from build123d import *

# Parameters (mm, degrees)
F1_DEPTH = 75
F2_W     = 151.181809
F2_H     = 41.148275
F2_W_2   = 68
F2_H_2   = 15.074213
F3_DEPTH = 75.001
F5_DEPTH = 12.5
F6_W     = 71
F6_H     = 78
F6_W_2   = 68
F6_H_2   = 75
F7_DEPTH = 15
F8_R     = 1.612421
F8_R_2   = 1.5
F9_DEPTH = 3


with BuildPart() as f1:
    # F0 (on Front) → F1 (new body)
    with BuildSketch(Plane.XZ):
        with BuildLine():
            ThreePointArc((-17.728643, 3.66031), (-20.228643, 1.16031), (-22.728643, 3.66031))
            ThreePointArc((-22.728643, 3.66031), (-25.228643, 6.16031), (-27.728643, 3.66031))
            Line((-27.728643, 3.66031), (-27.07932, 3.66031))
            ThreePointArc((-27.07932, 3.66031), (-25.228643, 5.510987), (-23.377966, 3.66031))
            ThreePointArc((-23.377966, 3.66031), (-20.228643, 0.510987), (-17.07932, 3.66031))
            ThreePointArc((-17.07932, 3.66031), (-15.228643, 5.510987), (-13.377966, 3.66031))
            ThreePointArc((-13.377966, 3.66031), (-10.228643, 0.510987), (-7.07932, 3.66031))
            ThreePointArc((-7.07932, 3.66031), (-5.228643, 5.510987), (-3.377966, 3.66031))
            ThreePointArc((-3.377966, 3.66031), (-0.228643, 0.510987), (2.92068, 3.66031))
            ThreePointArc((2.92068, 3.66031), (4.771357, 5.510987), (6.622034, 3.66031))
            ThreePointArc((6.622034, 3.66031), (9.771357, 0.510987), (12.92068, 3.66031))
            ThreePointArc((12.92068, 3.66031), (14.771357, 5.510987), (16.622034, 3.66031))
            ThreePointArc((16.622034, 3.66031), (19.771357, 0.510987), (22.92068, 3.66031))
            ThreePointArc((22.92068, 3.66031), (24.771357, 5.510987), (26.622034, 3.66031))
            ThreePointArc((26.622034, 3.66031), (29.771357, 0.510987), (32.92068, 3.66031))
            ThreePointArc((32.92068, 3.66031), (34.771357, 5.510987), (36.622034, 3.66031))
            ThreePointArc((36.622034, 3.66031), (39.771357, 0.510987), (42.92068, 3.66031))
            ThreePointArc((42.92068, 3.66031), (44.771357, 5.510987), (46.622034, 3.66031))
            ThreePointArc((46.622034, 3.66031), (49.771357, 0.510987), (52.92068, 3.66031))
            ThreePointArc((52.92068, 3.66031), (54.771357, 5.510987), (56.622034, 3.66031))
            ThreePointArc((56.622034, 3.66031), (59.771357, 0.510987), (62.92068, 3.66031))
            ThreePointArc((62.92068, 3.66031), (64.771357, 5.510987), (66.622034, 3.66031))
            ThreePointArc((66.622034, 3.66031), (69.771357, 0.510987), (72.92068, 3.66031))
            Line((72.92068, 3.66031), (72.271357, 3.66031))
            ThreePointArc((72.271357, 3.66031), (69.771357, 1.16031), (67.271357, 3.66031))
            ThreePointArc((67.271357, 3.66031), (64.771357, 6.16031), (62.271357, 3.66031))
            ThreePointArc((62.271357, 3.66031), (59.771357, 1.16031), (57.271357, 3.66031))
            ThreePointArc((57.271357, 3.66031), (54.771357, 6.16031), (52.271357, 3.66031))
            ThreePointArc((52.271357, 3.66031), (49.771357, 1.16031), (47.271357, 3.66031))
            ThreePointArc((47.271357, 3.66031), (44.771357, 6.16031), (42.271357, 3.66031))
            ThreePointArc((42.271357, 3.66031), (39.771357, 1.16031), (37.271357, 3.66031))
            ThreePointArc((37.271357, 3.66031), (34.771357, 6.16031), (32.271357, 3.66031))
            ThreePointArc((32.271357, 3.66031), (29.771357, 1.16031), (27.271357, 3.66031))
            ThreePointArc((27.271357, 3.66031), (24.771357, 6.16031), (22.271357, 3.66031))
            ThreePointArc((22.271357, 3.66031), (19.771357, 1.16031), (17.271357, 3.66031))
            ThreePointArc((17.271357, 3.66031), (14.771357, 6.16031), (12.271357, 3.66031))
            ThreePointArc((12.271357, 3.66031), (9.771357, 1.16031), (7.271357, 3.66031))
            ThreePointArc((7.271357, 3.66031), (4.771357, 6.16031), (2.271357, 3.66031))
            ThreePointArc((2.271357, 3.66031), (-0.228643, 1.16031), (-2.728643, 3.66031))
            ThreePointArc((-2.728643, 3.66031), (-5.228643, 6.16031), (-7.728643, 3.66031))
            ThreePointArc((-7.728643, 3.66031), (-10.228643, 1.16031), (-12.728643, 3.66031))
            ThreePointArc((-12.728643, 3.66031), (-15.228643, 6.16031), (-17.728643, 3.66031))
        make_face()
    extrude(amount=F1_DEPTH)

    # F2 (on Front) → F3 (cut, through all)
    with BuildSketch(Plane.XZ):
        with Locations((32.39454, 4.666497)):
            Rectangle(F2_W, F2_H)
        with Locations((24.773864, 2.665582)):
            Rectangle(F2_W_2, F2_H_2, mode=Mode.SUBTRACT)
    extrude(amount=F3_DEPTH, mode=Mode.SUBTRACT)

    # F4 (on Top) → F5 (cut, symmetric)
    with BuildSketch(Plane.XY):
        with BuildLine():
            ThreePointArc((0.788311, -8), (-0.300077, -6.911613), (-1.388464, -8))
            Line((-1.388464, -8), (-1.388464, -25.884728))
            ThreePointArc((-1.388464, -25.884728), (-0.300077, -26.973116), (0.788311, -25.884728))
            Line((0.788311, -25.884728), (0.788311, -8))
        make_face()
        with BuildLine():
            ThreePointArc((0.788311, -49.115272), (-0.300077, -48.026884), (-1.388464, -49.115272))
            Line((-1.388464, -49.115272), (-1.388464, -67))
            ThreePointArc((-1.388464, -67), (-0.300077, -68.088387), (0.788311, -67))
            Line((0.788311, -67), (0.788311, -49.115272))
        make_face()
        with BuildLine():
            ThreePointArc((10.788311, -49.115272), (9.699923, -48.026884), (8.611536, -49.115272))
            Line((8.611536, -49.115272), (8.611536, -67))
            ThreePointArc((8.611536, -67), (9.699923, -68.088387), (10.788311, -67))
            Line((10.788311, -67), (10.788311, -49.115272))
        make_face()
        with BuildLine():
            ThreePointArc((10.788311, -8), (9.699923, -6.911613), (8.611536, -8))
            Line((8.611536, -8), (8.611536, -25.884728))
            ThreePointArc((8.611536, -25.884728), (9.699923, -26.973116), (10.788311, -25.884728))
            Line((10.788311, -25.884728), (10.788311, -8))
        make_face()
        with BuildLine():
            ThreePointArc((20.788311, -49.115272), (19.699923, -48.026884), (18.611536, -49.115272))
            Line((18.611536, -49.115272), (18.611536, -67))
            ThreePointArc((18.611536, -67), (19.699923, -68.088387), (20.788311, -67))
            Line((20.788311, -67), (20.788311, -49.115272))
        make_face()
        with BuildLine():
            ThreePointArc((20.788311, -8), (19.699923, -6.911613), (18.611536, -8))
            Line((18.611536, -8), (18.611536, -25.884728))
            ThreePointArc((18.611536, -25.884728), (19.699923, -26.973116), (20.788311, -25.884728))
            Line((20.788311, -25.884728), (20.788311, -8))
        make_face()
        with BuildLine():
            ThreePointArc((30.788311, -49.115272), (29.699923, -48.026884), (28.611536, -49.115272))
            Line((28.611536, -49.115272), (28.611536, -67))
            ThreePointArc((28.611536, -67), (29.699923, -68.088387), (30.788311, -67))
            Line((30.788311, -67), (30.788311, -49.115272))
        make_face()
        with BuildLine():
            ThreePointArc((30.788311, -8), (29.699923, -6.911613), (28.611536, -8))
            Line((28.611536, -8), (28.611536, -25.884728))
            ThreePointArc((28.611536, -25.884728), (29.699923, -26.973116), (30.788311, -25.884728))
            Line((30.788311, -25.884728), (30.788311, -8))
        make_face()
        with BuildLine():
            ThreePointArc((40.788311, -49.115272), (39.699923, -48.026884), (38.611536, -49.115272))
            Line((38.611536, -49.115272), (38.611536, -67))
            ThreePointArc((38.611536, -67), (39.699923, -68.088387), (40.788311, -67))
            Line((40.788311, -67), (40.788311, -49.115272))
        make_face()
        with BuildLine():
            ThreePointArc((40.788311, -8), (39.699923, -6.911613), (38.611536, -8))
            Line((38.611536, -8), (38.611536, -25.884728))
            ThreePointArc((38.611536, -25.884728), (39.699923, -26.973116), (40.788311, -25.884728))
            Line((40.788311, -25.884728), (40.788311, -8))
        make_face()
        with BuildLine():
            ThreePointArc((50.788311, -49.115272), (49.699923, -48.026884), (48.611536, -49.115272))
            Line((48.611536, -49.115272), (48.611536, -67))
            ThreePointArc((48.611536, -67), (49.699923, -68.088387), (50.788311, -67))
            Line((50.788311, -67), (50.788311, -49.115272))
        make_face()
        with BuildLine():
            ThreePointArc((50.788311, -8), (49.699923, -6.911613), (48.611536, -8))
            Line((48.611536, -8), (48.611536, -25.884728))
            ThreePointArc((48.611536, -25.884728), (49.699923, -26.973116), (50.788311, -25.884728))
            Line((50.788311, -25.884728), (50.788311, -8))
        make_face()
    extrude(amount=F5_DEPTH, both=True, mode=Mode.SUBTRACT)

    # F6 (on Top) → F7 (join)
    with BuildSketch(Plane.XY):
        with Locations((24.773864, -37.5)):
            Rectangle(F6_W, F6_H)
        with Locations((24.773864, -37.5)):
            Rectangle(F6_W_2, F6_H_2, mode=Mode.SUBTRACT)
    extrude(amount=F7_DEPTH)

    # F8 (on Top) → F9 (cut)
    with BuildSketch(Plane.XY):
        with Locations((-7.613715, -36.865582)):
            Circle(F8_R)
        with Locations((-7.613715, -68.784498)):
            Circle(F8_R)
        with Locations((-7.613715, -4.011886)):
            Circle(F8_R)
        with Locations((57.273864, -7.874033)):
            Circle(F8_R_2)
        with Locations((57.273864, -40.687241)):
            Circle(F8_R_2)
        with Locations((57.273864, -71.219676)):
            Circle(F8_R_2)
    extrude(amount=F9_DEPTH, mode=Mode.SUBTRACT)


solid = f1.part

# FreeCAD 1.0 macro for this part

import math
import FreeCAD as App
import Part
import Sketcher


def add_polygon(sketch, points):
    """Adds a closed chain of lines whose ends are joined by coincident constraints."""
    first, n = sketch.GeometryCount, len(points)
    for a, b in zip(points, points[1:] + points[:1]):
        sketch.addGeometry(Part.LineSegment(App.Vector(*a, 0), App.Vector(*b, 0)), False)
    for i in range(n):
        sketch.addConstraint(Sketcher.Constraint("Coincident", first + i, 2, first + (i + 1) % n, 1))

doc = App.newDocument("Part")
body = doc.addObject("PartDesign::Body", "Body")

sketch1 = body.newObject("Sketcher::SketchObject", "Sketch")
sketch1.AttachmentSupport = (doc.getObject("XZ_Plane"), [""])
sketch1.MapMode = "FlatFace"
sketch1.addGeometry([
    Part.ArcOfCircle(Part.Circle(App.Vector(-20.2, 3.7, 0), App.Vector(0, 0, 1), 2.5), math.radians(180), math.radians(360)),
    Part.ArcOfCircle(Part.Circle(App.Vector(-25.2, 3.7, 0), App.Vector(0, 0, 1), 2.5), math.radians(0), math.radians(180)),
    Part.LineSegment(App.Vector(-27.7, 3.7, 0), App.Vector(-27.1, 3.7, 0)),
    Part.ArcOfCircle(Part.Circle(App.Vector(-25.2, 3.7, 0), App.Vector(0, 0, 1), 1.9), math.radians(0), math.radians(180)),
    Part.ArcOfCircle(Part.Circle(App.Vector(-20.2, 3.7, 0), App.Vector(0, 0, 1), 3.1), math.radians(180), math.radians(360)),
    Part.ArcOfCircle(Part.Circle(App.Vector(-15.2, 3.7, 0), App.Vector(0, 0, 1), 1.9), math.radians(0), math.radians(180)),
    Part.ArcOfCircle(Part.Circle(App.Vector(-10.2, 3.7, 0), App.Vector(0, 0, 1), 3.1), math.radians(180), math.radians(360)),
    Part.ArcOfCircle(Part.Circle(App.Vector(-5.2, 3.7, 0), App.Vector(0, 0, 1), 1.9), math.radians(0), math.radians(180)),
    Part.ArcOfCircle(Part.Circle(App.Vector(-0.2, 3.7, 0), App.Vector(0, 0, 1), 3.1), math.radians(180), math.radians(360)),
    Part.ArcOfCircle(Part.Circle(App.Vector(4.8, 3.7, 0), App.Vector(0, 0, 1), 1.9), math.radians(0), math.radians(180)),
    Part.ArcOfCircle(Part.Circle(App.Vector(9.8, 3.7, 0), App.Vector(0, 0, 1), 3.1), math.radians(180), math.radians(360)),
    Part.ArcOfCircle(Part.Circle(App.Vector(14.8, 3.7, 0), App.Vector(0, 0, 1), 1.9), math.radians(0), math.radians(180)),
    Part.ArcOfCircle(Part.Circle(App.Vector(19.8, 3.7, 0), App.Vector(0, 0, 1), 3.1), math.radians(180), math.radians(360)),
    Part.ArcOfCircle(Part.Circle(App.Vector(24.8, 3.7, 0), App.Vector(0, 0, 1), 1.9), math.radians(0), math.radians(180)),
    Part.ArcOfCircle(Part.Circle(App.Vector(29.8, 3.7, 0), App.Vector(0, 0, 1), 3.1), math.radians(180), math.radians(360)),
    Part.ArcOfCircle(Part.Circle(App.Vector(34.8, 3.7, 0), App.Vector(0, 0, 1), 1.9), math.radians(0), math.radians(180)),
    Part.ArcOfCircle(Part.Circle(App.Vector(39.8, 3.7, 0), App.Vector(0, 0, 1), 3.1), math.radians(180), math.radians(360)),
    Part.ArcOfCircle(Part.Circle(App.Vector(44.8, 3.7, 0), App.Vector(0, 0, 1), 1.9), math.radians(0), math.radians(180)),
    Part.ArcOfCircle(Part.Circle(App.Vector(49.8, 3.7, 0), App.Vector(0, 0, 1), 3.1), math.radians(180), math.radians(360)),
    Part.ArcOfCircle(Part.Circle(App.Vector(54.8, 3.7, 0), App.Vector(0, 0, 1), 1.9), math.radians(0), math.radians(180)),
    Part.ArcOfCircle(Part.Circle(App.Vector(59.8, 3.7, 0), App.Vector(0, 0, 1), 3.1), math.radians(180), math.radians(360)),
    Part.ArcOfCircle(Part.Circle(App.Vector(64.8, 3.7, 0), App.Vector(0, 0, 1), 1.9), math.radians(0), math.radians(180)),
    Part.ArcOfCircle(Part.Circle(App.Vector(69.8, 3.7, 0), App.Vector(0, 0, 1), 3.1), math.radians(180), math.radians(360)),
    Part.LineSegment(App.Vector(72.9, 3.7, 0), App.Vector(72.3, 3.7, 0)),
    Part.ArcOfCircle(Part.Circle(App.Vector(69.8, 3.7, 0), App.Vector(0, 0, 1), 2.5), math.radians(180), math.radians(360)),
    Part.ArcOfCircle(Part.Circle(App.Vector(64.8, 3.7, 0), App.Vector(0, 0, 1), 2.5), math.radians(0), math.radians(180)),
    Part.ArcOfCircle(Part.Circle(App.Vector(59.8, 3.7, 0), App.Vector(0, 0, 1), 2.5), math.radians(180), math.radians(360)),
    Part.ArcOfCircle(Part.Circle(App.Vector(54.8, 3.7, 0), App.Vector(0, 0, 1), 2.5), math.radians(0), math.radians(180)),
    Part.ArcOfCircle(Part.Circle(App.Vector(49.8, 3.7, 0), App.Vector(0, 0, 1), 2.5), math.radians(180), math.radians(360)),
    Part.ArcOfCircle(Part.Circle(App.Vector(44.8, 3.7, 0), App.Vector(0, 0, 1), 2.5), math.radians(0), math.radians(180)),
    Part.ArcOfCircle(Part.Circle(App.Vector(39.8, 3.7, 0), App.Vector(0, 0, 1), 2.5), math.radians(180), math.radians(360)),
    Part.ArcOfCircle(Part.Circle(App.Vector(34.8, 3.7, 0), App.Vector(0, 0, 1), 2.5), math.radians(0), math.radians(180)),
    Part.ArcOfCircle(Part.Circle(App.Vector(29.8, 3.7, 0), App.Vector(0, 0, 1), 2.5), math.radians(180), math.radians(360)),
    Part.ArcOfCircle(Part.Circle(App.Vector(24.8, 3.7, 0), App.Vector(0, 0, 1), 2.5), math.radians(0), math.radians(180)),
    Part.ArcOfCircle(Part.Circle(App.Vector(19.8, 3.7, 0), App.Vector(0, 0, 1), 2.5), math.radians(180), math.radians(360)),
    Part.ArcOfCircle(Part.Circle(App.Vector(14.8, 3.7, 0), App.Vector(0, 0, 1), 2.5), math.radians(0), math.radians(180)),
    Part.ArcOfCircle(Part.Circle(App.Vector(9.8, 3.7, 0), App.Vector(0, 0, 1), 2.5), math.radians(180), math.radians(360)),
    Part.ArcOfCircle(Part.Circle(App.Vector(4.8, 3.7, 0), App.Vector(0, 0, 1), 2.5), math.radians(0), math.radians(180)),
    Part.ArcOfCircle(Part.Circle(App.Vector(-0.2, 3.7, 0), App.Vector(0, 0, 1), 2.5), math.radians(180), math.radians(360)),
    Part.ArcOfCircle(Part.Circle(App.Vector(-5.2, 3.7, 0), App.Vector(0, 0, 1), 2.5), math.radians(0), math.radians(180)),
    Part.ArcOfCircle(Part.Circle(App.Vector(-10.2, 3.7, 0), App.Vector(0, 0, 1), 2.5), math.radians(180), math.radians(360)),
    Part.ArcOfCircle(Part.Circle(App.Vector(-15.2, 3.7, 0), App.Vector(0, 0, 1), 2.5), math.radians(0), math.radians(180)),
], False)
sketch1.addConstraint([
    Sketcher.Constraint("Tangent", 0, 1, 1, 1),
    Sketcher.Constraint("Coincident", 1, 2, 2, 1),
    Sketcher.Constraint("Coincident", 2, 2, 3, 2),
    Sketcher.Constraint("Tangent", 3, 1, 4, 1),
    Sketcher.Constraint("Tangent", 4, 2, 5, 2),
    Sketcher.Constraint("Tangent", 5, 1, 6, 1),
    Sketcher.Constraint("Tangent", 6, 2, 7, 2),
    Sketcher.Constraint("Tangent", 7, 1, 8, 1),
    Sketcher.Constraint("Tangent", 8, 2, 9, 2),
    Sketcher.Constraint("Tangent", 9, 1, 10, 1),
    Sketcher.Constraint("Tangent", 10, 2, 11, 2),
    Sketcher.Constraint("Tangent", 11, 1, 12, 1),
    Sketcher.Constraint("Tangent", 12, 2, 13, 2),
    Sketcher.Constraint("Tangent", 13, 1, 14, 1),
    Sketcher.Constraint("Tangent", 14, 2, 15, 2),
    Sketcher.Constraint("Tangent", 15, 1, 16, 1),
    Sketcher.Constraint("Tangent", 16, 2, 17, 2),
    Sketcher.Constraint("Tangent", 17, 1, 18, 1),
    Sketcher.Constraint("Tangent", 18, 2, 19, 2),
    Sketcher.Constraint("Tangent", 19, 1, 20, 1),
    Sketcher.Constraint("Tangent", 20, 2, 21, 2),
    Sketcher.Constraint("Tangent", 21, 1, 22, 1),
    Sketcher.Constraint("Coincident", 22, 2, 23, 1),
    Sketcher.Constraint("Coincident", 23, 2, 24, 2),
    Sketcher.Constraint("Tangent", 24, 1, 25, 1),
    Sketcher.Constraint("Tangent", 25, 2, 26, 2),
    Sketcher.Constraint("Tangent", 26, 1, 27, 1),
    Sketcher.Constraint("Tangent", 27, 2, 28, 2),
    Sketcher.Constraint("Tangent", 28, 1, 29, 1),
    Sketcher.Constraint("Tangent", 29, 2, 30, 2),
    Sketcher.Constraint("Tangent", 30, 1, 31, 1),
    Sketcher.Constraint("Tangent", 31, 2, 32, 2),
    Sketcher.Constraint("Tangent", 32, 1, 33, 1),
    Sketcher.Constraint("Tangent", 33, 2, 34, 2),
    Sketcher.Constraint("Tangent", 34, 1, 35, 1),
    Sketcher.Constraint("Tangent", 35, 2, 36, 2),
    Sketcher.Constraint("Tangent", 36, 1, 37, 1),
    Sketcher.Constraint("Tangent", 37, 2, 38, 2),
    Sketcher.Constraint("Tangent", 38, 1, 39, 1),
    Sketcher.Constraint("Tangent", 39, 2, 40, 2),
    Sketcher.Constraint("Tangent", 40, 1, 41, 1),
    Sketcher.Constraint("Tangent", 41, 2, 0, 2),
    Sketcher.Constraint("Horizontal", 2),
    Sketcher.Constraint("Horizontal", 23),
    Sketcher.Constraint("Coincident", 3, 3, 1, 3),
    Sketcher.Constraint("Coincident", 4, 3, 0, 3),
    Sketcher.Constraint("Coincident", 24, 3, 22, 3),
    Sketcher.Constraint("Coincident", 25, 3, 21, 3),
    Sketcher.Constraint("Coincident", 26, 3, 20, 3),
    Sketcher.Constraint("Coincident", 27, 3, 19, 3),
    Sketcher.Constraint("Coincident", 28, 3, 18, 3),
    Sketcher.Constraint("Coincident", 29, 3, 17, 3),
    Sketcher.Constraint("Coincident", 30, 3, 16, 3),
    Sketcher.Constraint("Coincident", 31, 3, 15, 3),
    Sketcher.Constraint("Coincident", 32, 3, 14, 3),
    Sketcher.Constraint("Coincident", 33, 3, 13, 3),
    Sketcher.Constraint("Coincident", 34, 3, 12, 3),
    Sketcher.Constraint("Coincident", 35, 3, 11, 3),
    Sketcher.Constraint("Coincident", 36, 3, 10, 3),
    Sketcher.Constraint("Coincident", 37, 3, 9, 3),
    Sketcher.Constraint("Coincident", 38, 3, 8, 3),
    Sketcher.Constraint("Coincident", 39, 3, 7, 3),
    Sketcher.Constraint("Coincident", 40, 3, 6, 3),
    Sketcher.Constraint("Coincident", 41, 3, 5, 3),
    Sketcher.Constraint("Equal", 0, 1),
    Sketcher.Constraint("Equal", 3, 5),
    Sketcher.Constraint("Equal", 4, 6),
    Sketcher.Constraint("Equal", 5, 7),
    Sketcher.Constraint("Equal", 6, 8),
    Sketcher.Constraint("Equal", 7, 9),
    Sketcher.Constraint("Equal", 8, 10),
    Sketcher.Constraint("Equal", 9, 11),
    Sketcher.Constraint("Equal", 10, 12),
    Sketcher.Constraint("Equal", 11, 13),
    Sketcher.Constraint("Equal", 12, 14),
    Sketcher.Constraint("Equal", 13, 15),
    Sketcher.Constraint("Equal", 14, 16),
    Sketcher.Constraint("Equal", 15, 17),
    Sketcher.Constraint("Equal", 16, 18),
    Sketcher.Constraint("Equal", 17, 19),
    Sketcher.Constraint("Equal", 18, 20),
    Sketcher.Constraint("Equal", 19, 21),
    Sketcher.Constraint("Equal", 20, 22),
    Sketcher.Constraint("Horizontal", 0, 3, 1, 3),
    Sketcher.Constraint("Horizontal", 4, 3, 5, 3),
    Sketcher.Constraint("Horizontal", 5, 3, 6, 3),
    Sketcher.Constraint("Horizontal", 6, 3, 7, 3),
    Sketcher.Constraint("Horizontal", 7, 3, 8, 3),
    Sketcher.Constraint("Horizontal", 8, 3, 9, 3),
    Sketcher.Constraint("Horizontal", 9, 3, 10, 3),
    Sketcher.Constraint("Horizontal", 10, 3, 11, 3),
    Sketcher.Constraint("Horizontal", 11, 3, 12, 3),
    Sketcher.Constraint("Horizontal", 12, 3, 13, 3),
    Sketcher.Constraint("Horizontal", 13, 3, 14, 3),
    Sketcher.Constraint("Horizontal", 14, 3, 15, 3),
    Sketcher.Constraint("Horizontal", 15, 3, 16, 3),
    Sketcher.Constraint("Horizontal", 16, 3, 17, 3),
    Sketcher.Constraint("Horizontal", 17, 3, 18, 3),
    Sketcher.Constraint("Horizontal", 18, 3, 19, 3),
    Sketcher.Constraint("Horizontal", 19, 3, 20, 3),
    Sketcher.Constraint("Horizontal", 20, 3, 21, 3),
    Sketcher.Constraint("Horizontal", 21, 3, 22, 3),
    Sketcher.Constraint("Horizontal", 0, 1, 1, 2),
    Sketcher.Constraint("Horizontal", 21, 1, 22, 2),
    Sketcher.Constraint("Radius", 0, 2.5),
    Sketcher.Constraint("Radius", 3, 1.850677),
    Sketcher.Constraint("DistanceY", -1, 1, 0, 3, 3.66031),
    Sketcher.Constraint("DistanceX", 2, 2, -1, 1, 27.07932),
])
pad1 = body.newObject("PartDesign::Pad", "Pad")
pad1.Profile = sketch1
pad1.Length = 75

sketch2 = body.newObject("Sketcher::SketchObject", "Sketch001")
sketch2.AttachmentSupport = (doc.getObject("XZ_Plane"), [""])
sketch2.MapMode = "FlatFace"
add_polygon(sketch2, [(-43, 25), (-43, -16), (108, -16), (108, 25)])
add_polygon(sketch2, [(59, -5), (-9, -5), (-9, 10), (59, 10)])
sketch2.addConstraint([
    Sketcher.Constraint("Vertical", 0),
    Sketcher.Constraint("Horizontal", 1),
    Sketcher.Constraint("Vertical", 2),
    Sketcher.Constraint("Horizontal", 3),
    Sketcher.Constraint("Horizontal", 4),
    Sketcher.Constraint("Vertical", 5),
    Sketcher.Constraint("Horizontal", 6),
    Sketcher.Constraint("Vertical", 7),
    Sketcher.Constraint("DistanceX", 4, 2, 4, 1, 68.0),
    Sketcher.Constraint("DistanceX", 1, 1, 1, 2, 151.181809),
    Sketcher.Constraint("DistanceY", 0, 2, 0, 1, 41.148275),
    Sketcher.Constraint("DistanceY", 5, 1, 5, 2, 15.074213),
    Sketcher.Constraint("DistanceY", 0, 2, -1, 1, 15.90764),
    Sketcher.Constraint("DistanceY", -1, 1, 5, 2, 10.202689),
    Sketcher.Constraint("DistanceX", 0, 2, 4, 2, 33.970229),
    Sketcher.Constraint("DistanceX", 0, 2, -1, 1, 43.196365),
])
pocket1 = body.newObject("PartDesign::Pocket", "Pocket")
pocket1.Profile = sketch2
pocket1.Type = "ThroughAll"
pocket1.Reversed = True

sketch3 = body.newObject("Sketcher::SketchObject", "Sketch002")
sketch3.AttachmentSupport = (doc.getObject("XY_Plane"), [""])
sketch3.MapMode = "FlatFace"
sketch3.addGeometry([
    Part.ArcOfCircle(Part.Circle(App.Vector(-0.3, -8, 0), App.Vector(0, 0, 1), 1.1), math.radians(0), math.radians(180)),
    Part.LineSegment(App.Vector(-1.4, -8, 0), App.Vector(-1.4, -25.9, 0)),
    Part.ArcOfCircle(Part.Circle(App.Vector(-0.3, -25.9, 0), App.Vector(0, 0, 1), 1.1), math.radians(180), math.radians(360)),
    Part.LineSegment(App.Vector(0.8, -25.9, 0), App.Vector(0.8, -8, 0)),
    Part.ArcOfCircle(Part.Circle(App.Vector(-0.3, -49.1, 0), App.Vector(0, 0, 1), 1.1), math.radians(0), math.radians(180)),
    Part.LineSegment(App.Vector(-1.4, -49.1, 0), App.Vector(-1.4, -67, 0)),
    Part.ArcOfCircle(Part.Circle(App.Vector(-0.3, -67, 0), App.Vector(0, 0, 1), 1.1), math.radians(-180), math.radians(0)),
    Part.LineSegment(App.Vector(0.8, -67, 0), App.Vector(0.8, -49.1, 0)),
    Part.ArcOfCircle(Part.Circle(App.Vector(9.7, -49.1, 0), App.Vector(0, 0, 1), 1.1), math.radians(0), math.radians(180)),
    Part.LineSegment(App.Vector(8.6, -49.1, 0), App.Vector(8.6, -67, 0)),
    Part.ArcOfCircle(Part.Circle(App.Vector(9.7, -67, 0), App.Vector(0, 0, 1), 1.1), math.radians(-180), math.radians(0)),
    Part.LineSegment(App.Vector(10.8, -67, 0), App.Vector(10.8, -49.1, 0)),
    Part.ArcOfCircle(Part.Circle(App.Vector(9.7, -8, 0), App.Vector(0, 0, 1), 1.1), math.radians(0), math.radians(180)),
    Part.LineSegment(App.Vector(8.6, -8, 0), App.Vector(8.6, -25.9, 0)),
    Part.ArcOfCircle(Part.Circle(App.Vector(9.7, -25.9, 0), App.Vector(0, 0, 1), 1.1), math.radians(180), math.radians(360)),
    Part.LineSegment(App.Vector(10.8, -25.9, 0), App.Vector(10.8, -8, 0)),
    Part.ArcOfCircle(Part.Circle(App.Vector(19.7, -49.1, 0), App.Vector(0, 0, 1), 1.1), math.radians(0), math.radians(180)),
    Part.LineSegment(App.Vector(18.6, -49.1, 0), App.Vector(18.6, -67, 0)),
    Part.ArcOfCircle(Part.Circle(App.Vector(19.7, -67, 0), App.Vector(0, 0, 1), 1.1), math.radians(-180), math.radians(0)),
    Part.LineSegment(App.Vector(20.8, -67, 0), App.Vector(20.8, -49.1, 0)),
    Part.ArcOfCircle(Part.Circle(App.Vector(19.7, -8, 0), App.Vector(0, 0, 1), 1.1), math.radians(0), math.radians(180)),
    Part.LineSegment(App.Vector(18.6, -8, 0), App.Vector(18.6, -25.9, 0)),
    Part.ArcOfCircle(Part.Circle(App.Vector(19.7, -25.9, 0), App.Vector(0, 0, 1), 1.1), math.radians(180), math.radians(360)),
    Part.LineSegment(App.Vector(20.8, -25.9, 0), App.Vector(20.8, -8, 0)),
    Part.ArcOfCircle(Part.Circle(App.Vector(29.7, -49.1, 0), App.Vector(0, 0, 1), 1.1), math.radians(0), math.radians(180)),
    Part.LineSegment(App.Vector(28.6, -49.1, 0), App.Vector(28.6, -67, 0)),
    Part.ArcOfCircle(Part.Circle(App.Vector(29.7, -67, 0), App.Vector(0, 0, 1), 1.1), math.radians(-180), math.radians(0)),
    Part.LineSegment(App.Vector(30.8, -67, 0), App.Vector(30.8, -49.1, 0)),
    Part.ArcOfCircle(Part.Circle(App.Vector(29.7, -8, 0), App.Vector(0, 0, 1), 1.1), math.radians(0), math.radians(180)),
    Part.LineSegment(App.Vector(28.6, -8, 0), App.Vector(28.6, -25.9, 0)),
    Part.ArcOfCircle(Part.Circle(App.Vector(29.7, -25.9, 0), App.Vector(0, 0, 1), 1.1), math.radians(180), math.radians(360)),
    Part.LineSegment(App.Vector(30.8, -25.9, 0), App.Vector(30.8, -8, 0)),
    Part.ArcOfCircle(Part.Circle(App.Vector(39.7, -49.1, 0), App.Vector(0, 0, 1), 1.1), math.radians(0), math.radians(180)),
    Part.LineSegment(App.Vector(38.6, -49.1, 0), App.Vector(38.6, -67, 0)),
    Part.ArcOfCircle(Part.Circle(App.Vector(39.7, -67, 0), App.Vector(0, 0, 1), 1.1), math.radians(-180), math.radians(0)),
    Part.LineSegment(App.Vector(40.8, -67, 0), App.Vector(40.8, -49.1, 0)),
    Part.ArcOfCircle(Part.Circle(App.Vector(39.7, -8, 0), App.Vector(0, 0, 1), 1.1), math.radians(0), math.radians(180)),
    Part.LineSegment(App.Vector(38.6, -8, 0), App.Vector(38.6, -25.9, 0)),
    Part.ArcOfCircle(Part.Circle(App.Vector(39.7, -25.9, 0), App.Vector(0, 0, 1), 1.1), math.radians(180), math.radians(360)),
    Part.LineSegment(App.Vector(40.8, -25.9, 0), App.Vector(40.8, -8, 0)),
    Part.ArcOfCircle(Part.Circle(App.Vector(49.7, -49.1, 0), App.Vector(0, 0, 1), 1.1), math.radians(0), math.radians(180)),
    Part.LineSegment(App.Vector(48.6, -49.1, 0), App.Vector(48.6, -67, 0)),
    Part.ArcOfCircle(Part.Circle(App.Vector(49.7, -67, 0), App.Vector(0, 0, 1), 1.1), math.radians(-180), math.radians(0)),
    Part.LineSegment(App.Vector(50.8, -67, 0), App.Vector(50.8, -49.1, 0)),
    Part.ArcOfCircle(Part.Circle(App.Vector(49.7, -8, 0), App.Vector(0, 0, 1), 1.1), math.radians(0), math.radians(180)),
    Part.LineSegment(App.Vector(48.6, -8, 0), App.Vector(48.6, -25.9, 0)),
    Part.ArcOfCircle(Part.Circle(App.Vector(49.7, -25.9, 0), App.Vector(0, 0, 1), 1.1), math.radians(180), math.radians(360)),
    Part.LineSegment(App.Vector(50.8, -25.9, 0), App.Vector(50.8, -8, 0)),
], False)
sketch3.addConstraint([
    Sketcher.Constraint("Tangent", 0, 2, 1, 1),
    Sketcher.Constraint("Tangent", 1, 2, 2, 1),
    Sketcher.Constraint("Tangent", 2, 2, 3, 1),
    Sketcher.Constraint("Tangent", 3, 2, 0, 1),
    Sketcher.Constraint("Tangent", 4, 2, 5, 1),
    Sketcher.Constraint("Tangent", 5, 2, 6, 1),
    Sketcher.Constraint("Tangent", 6, 2, 7, 1),
    Sketcher.Constraint("Tangent", 7, 2, 4, 1),
    Sketcher.Constraint("Tangent", 8, 2, 9, 1),
    Sketcher.Constraint("Tangent", 9, 2, 10, 1),
    Sketcher.Constraint("Tangent", 10, 2, 11, 1),
    Sketcher.Constraint("Tangent", 11, 2, 8, 1),
    Sketcher.Constraint("Tangent", 12, 2, 13, 1),
    Sketcher.Constraint("Tangent", 13, 2, 14, 1),
    Sketcher.Constraint("Tangent", 14, 2, 15, 1),
    Sketcher.Constraint("Tangent", 15, 2, 12, 1),
    Sketcher.Constraint("Tangent", 16, 2, 17, 1),
    Sketcher.Constraint("Tangent", 17, 2, 18, 1),
    Sketcher.Constraint("Tangent", 18, 2, 19, 1),
    Sketcher.Constraint("Tangent", 19, 2, 16, 1),
    Sketcher.Constraint("Tangent", 20, 2, 21, 1),
    Sketcher.Constraint("Tangent", 21, 2, 22, 1),
    Sketcher.Constraint("Tangent", 22, 2, 23, 1),
    Sketcher.Constraint("Tangent", 23, 2, 20, 1),
    Sketcher.Constraint("Tangent", 24, 2, 25, 1),
    Sketcher.Constraint("Tangent", 25, 2, 26, 1),
    Sketcher.Constraint("Tangent", 26, 2, 27, 1),
    Sketcher.Constraint("Tangent", 27, 2, 24, 1),
    Sketcher.Constraint("Tangent", 28, 2, 29, 1),
    Sketcher.Constraint("Tangent", 29, 2, 30, 1),
    Sketcher.Constraint("Tangent", 30, 2, 31, 1),
    Sketcher.Constraint("Tangent", 31, 2, 28, 1),
    Sketcher.Constraint("Tangent", 32, 2, 33, 1),
    Sketcher.Constraint("Tangent", 33, 2, 34, 1),
    Sketcher.Constraint("Tangent", 34, 2, 35, 1),
    Sketcher.Constraint("Tangent", 35, 2, 32, 1),
    Sketcher.Constraint("Tangent", 36, 2, 37, 1),
    Sketcher.Constraint("Tangent", 37, 2, 38, 1),
    Sketcher.Constraint("Tangent", 38, 2, 39, 1),
    Sketcher.Constraint("Tangent", 39, 2, 36, 1),
    Sketcher.Constraint("Tangent", 40, 2, 41, 1),
    Sketcher.Constraint("Tangent", 41, 2, 42, 1),
    Sketcher.Constraint("Tangent", 42, 2, 43, 1),
    Sketcher.Constraint("Tangent", 43, 2, 40, 1),
    Sketcher.Constraint("Tangent", 44, 2, 45, 1),
    Sketcher.Constraint("Tangent", 45, 2, 46, 1),
    Sketcher.Constraint("Tangent", 46, 2, 47, 1),
    Sketcher.Constraint("Tangent", 47, 2, 44, 1),
    Sketcher.Constraint("Vertical", 1),
    Sketcher.Constraint("Vertical", 3),
    Sketcher.Constraint("Vertical", 5),
    Sketcher.Constraint("Vertical", 7),
    Sketcher.Constraint("Vertical", 9),
    Sketcher.Constraint("Vertical", 11),
    Sketcher.Constraint("Vertical", 13),
    Sketcher.Constraint("Vertical", 15),
    Sketcher.Constraint("Vertical", 17),
    Sketcher.Constraint("Vertical", 19),
    Sketcher.Constraint("Vertical", 21),
    Sketcher.Constraint("Vertical", 23),
    Sketcher.Constraint("Vertical", 25),
    Sketcher.Constraint("Vertical", 27),
    Sketcher.Constraint("Vertical", 29),
    Sketcher.Constraint("Vertical", 31),
    Sketcher.Constraint("Vertical", 33),
    Sketcher.Constraint("Vertical", 35),
    Sketcher.Constraint("Vertical", 37),
    Sketcher.Constraint("Vertical", 39),
    Sketcher.Constraint("Vertical", 41),
    Sketcher.Constraint("Vertical", 43),
    Sketcher.Constraint("Vertical", 45),
    Sketcher.Constraint("Vertical", 47),
    Sketcher.Constraint("Equal", 2, 4),
    Sketcher.Constraint("Equal", 6, 8),
    Sketcher.Constraint("Equal", 10, 12),
    Sketcher.Constraint("Equal", 14, 16),
    Sketcher.Constraint("Equal", 18, 20),
    Sketcher.Constraint("Equal", 22, 24),
    Sketcher.Constraint("Equal", 26, 28),
    Sketcher.Constraint("Equal", 30, 32),
    Sketcher.Constraint("Equal", 34, 36),
    Sketcher.Constraint("Equal", 38, 40),
    Sketcher.Constraint("Equal", 42, 44),
    Sketcher.Constraint("Horizontal", 4, 3, 8, 3),
    Sketcher.Constraint("Horizontal", 6, 3, 10, 3),
    Sketcher.Constraint("Horizontal", 0, 3, 12, 3),
    Sketcher.Constraint("Horizontal", 2, 3, 14, 3),
    Sketcher.Constraint("Horizontal", 8, 3, 16, 3),
    Sketcher.Constraint("Horizontal", 10, 3, 18, 3),
    Sketcher.Constraint("Horizontal", 12, 3, 20, 3),
    Sketcher.Constraint("Horizontal", 14, 3, 22, 3),
    Sketcher.Constraint("Horizontal", 16, 3, 24, 3),
    Sketcher.Constraint("Horizontal", 18, 3, 26, 3),
    Sketcher.Constraint("Horizontal", 20, 3, 28, 3),
    Sketcher.Constraint("Horizontal", 22, 3, 30, 3),
    Sketcher.Constraint("Horizontal", 24, 3, 32, 3),
    Sketcher.Constraint("Horizontal", 26, 3, 34, 3),
    Sketcher.Constraint("Horizontal", 28, 3, 36, 3),
    Sketcher.Constraint("Horizontal", 30, 3, 38, 3),
    Sketcher.Constraint("Horizontal", 32, 3, 40, 3),
    Sketcher.Constraint("Horizontal", 34, 3, 42, 3),
    Sketcher.Constraint("Horizontal", 36, 3, 44, 3),
    Sketcher.Constraint("Horizontal", 38, 3, 46, 3),
    Sketcher.Constraint("Vertical", 2, 3, 4, 3),
    Sketcher.Constraint("Vertical", 10, 3, 12, 3),
    Sketcher.Constraint("Vertical", 18, 3, 20, 3),
    Sketcher.Constraint("Vertical", 26, 3, 28, 3),
    Sketcher.Constraint("Vertical", 34, 3, 36, 3),
    Sketcher.Constraint("Vertical", 42, 3, 44, 3),
    Sketcher.Constraint("Equal", 3, 5),
    Sketcher.Constraint("DistanceY", 0, 3, -1, 1, 8.000001),
    Sketcher.Constraint("DistanceY", 6, 3, -1, 1, 67.0),
    Sketcher.Constraint("Radius", 0, 1.088388),
    Sketcher.Constraint("DistanceY", 5, 2, 5, 1, 17.884728),
    Sketcher.Constraint("DistanceX", -1, 1, 2, 2, 0.788311),
    Sketcher.Constraint("DistanceX", -1, 1, 10, 2, 10.788311),
    Sketcher.Constraint("DistanceX", -1, 1, 18, 2, 20.788311),
    Sketcher.Constraint("DistanceX", -1, 1, 26, 2, 30.788311),
    Sketcher.Constraint("DistanceX", -1, 1, 34, 2, 40.788311),
    Sketcher.Constraint("DistanceX", -1, 1, 42, 2, 50.788311),
])
pocket2 = body.newObject("PartDesign::Pocket", "Pocket001")
pocket2.Profile = sketch3
pocket2.Length = 25
pocket2.Midplane = True

sketch4 = body.newObject("Sketcher::SketchObject", "Sketch003")
sketch4.AttachmentSupport = (doc.getObject("XY_Plane"), [""])
sketch4.MapMode = "FlatFace"
add_polygon(sketch4, [(-11, 2), (-11, -76), (60, -76), (60, 2)])
add_polygon(sketch4, [(59, -75), (-9, -75), (-9, 0), (59, 0)])
sketch4.addConstraint([
    Sketcher.Constraint("Vertical", 0),
    Sketcher.Constraint("Horizontal", 1),
    Sketcher.Constraint("Vertical", 2),
    Sketcher.Constraint("Horizontal", 3),
    Sketcher.Constraint("Horizontal", 4),
    Sketcher.Constraint("Vertical", 5),
    Sketcher.Constraint("Horizontal", 6),
    Sketcher.Constraint("Vertical", 7),
    Sketcher.Constraint("PointOnObject", 5, 2, -1),
    Sketcher.Constraint("DistanceX", 1, 1, 1, 2, 71.0),
    Sketcher.Constraint("DistanceX", 4, 2, 4, 1, 68.0),
    Sketcher.Constraint("DistanceY", 0, 2, 0, 1, 78.0),
    Sketcher.Constraint("DistanceY", 5, 1, 5, 2, 75.0),
    Sketcher.Constraint("DistanceY", 0, 2, -1, 1, 76.5),
    Sketcher.Constraint("DistanceX", 0, 2, 4, 2, 1.5),
    Sketcher.Constraint("DistanceX", 0, 2, -1, 1, 10.726136),
])
pad2 = body.newObject("PartDesign::Pad", "Pad001")
pad2.Profile = sketch4
pad2.Length = 15

sketch5 = body.newObject("Sketcher::SketchObject", "Sketch004")
sketch5.AttachmentSupport = (doc.getObject("XY_Plane"), [""])
sketch5.MapMode = "FlatFace"
sketch5.addGeometry([
    Part.Circle(App.Vector(-7.6, -36.9, 0), App.Vector(0, 0, 1), 1.6),
    Part.Circle(App.Vector(-7.6, -68.8, 0), App.Vector(0, 0, 1), 1.6),
    Part.Circle(App.Vector(-7.6, -4, 0), App.Vector(0, 0, 1), 1.6),
    Part.Circle(App.Vector(57.3, -7.9, 0), App.Vector(0, 0, 1), 1.5),
    Part.Circle(App.Vector(57.3, -40.7, 0), App.Vector(0, 0, 1), 1.5),
    Part.Circle(App.Vector(57.3, -71.2, 0), App.Vector(0, 0, 1), 1.5),
], False)
sketch5.addConstraint([
    Sketcher.Constraint("Equal", 0, 1),
    Sketcher.Constraint("Equal", 1, 2),
    Sketcher.Constraint("Equal", 3, 4),
    Sketcher.Constraint("Equal", 4, 5),
    Sketcher.Constraint("Vertical", 0, 3, 1, 3),
    Sketcher.Constraint("Vertical", 1, 3, 2, 3),
    Sketcher.Constraint("Vertical", 3, 3, 4, 3),
    Sketcher.Constraint("Vertical", 4, 3, 5, 3),
    Sketcher.Constraint("Diameter", 3, 3.0),
    Sketcher.Constraint("Diameter", 0, 3.224842),
    Sketcher.Constraint("DistanceY", 1, 3, -1, 1, 68.784498),
    Sketcher.Constraint("DistanceY", 4, 3, -1, 1, 40.687241),
    Sketcher.Constraint("DistanceY", 1, 3, 2, 3, 64.772612),
    Sketcher.Constraint("DistanceX", 2, 3, 3, 3, 64.887579),
    Sketcher.Constraint("DistanceY", 0, 3, 3, 3, 28.991549),
    Sketcher.Constraint("DistanceY", 4, 3, 3, 3, 32.813208),
    Sketcher.Constraint("DistanceY", 5, 3, 1, 3, 2.435178),
    Sketcher.Constraint("DistanceX", 0, 3, -1, 1, 7.613715),
])
pocket3 = body.newObject("PartDesign::Pocket", "Pocket002")
pocket3.Profile = sketch5
pocket3.Length = 3
pocket3.Reversed = True

doc.recompute()
